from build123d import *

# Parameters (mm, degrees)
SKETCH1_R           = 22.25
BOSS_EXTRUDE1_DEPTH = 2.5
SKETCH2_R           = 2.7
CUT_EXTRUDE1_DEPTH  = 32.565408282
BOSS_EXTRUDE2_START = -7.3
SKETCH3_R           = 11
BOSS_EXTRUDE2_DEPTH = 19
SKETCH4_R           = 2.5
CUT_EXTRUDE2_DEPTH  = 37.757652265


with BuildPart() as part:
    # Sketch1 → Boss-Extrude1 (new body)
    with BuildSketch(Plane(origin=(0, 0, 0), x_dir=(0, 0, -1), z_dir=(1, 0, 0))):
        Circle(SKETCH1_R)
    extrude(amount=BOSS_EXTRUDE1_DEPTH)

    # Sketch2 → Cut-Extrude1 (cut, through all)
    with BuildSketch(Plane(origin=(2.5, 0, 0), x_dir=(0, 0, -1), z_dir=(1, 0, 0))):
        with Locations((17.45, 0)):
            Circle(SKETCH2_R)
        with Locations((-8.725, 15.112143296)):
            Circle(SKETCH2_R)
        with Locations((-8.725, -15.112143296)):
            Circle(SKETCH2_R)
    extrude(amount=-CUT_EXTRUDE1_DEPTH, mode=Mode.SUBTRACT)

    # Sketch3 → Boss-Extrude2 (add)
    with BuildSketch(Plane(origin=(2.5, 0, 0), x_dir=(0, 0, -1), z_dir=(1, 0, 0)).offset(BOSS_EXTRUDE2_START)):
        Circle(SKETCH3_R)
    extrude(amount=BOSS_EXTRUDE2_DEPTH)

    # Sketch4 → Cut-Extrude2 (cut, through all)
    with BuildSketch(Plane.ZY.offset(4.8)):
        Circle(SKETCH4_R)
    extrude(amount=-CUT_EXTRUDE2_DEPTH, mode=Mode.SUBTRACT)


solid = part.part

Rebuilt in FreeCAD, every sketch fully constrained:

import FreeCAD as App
import Part
import Sketcher

V = App.Vector

doc = App.newDocument("Part")
body = doc.addObject("PartDesign::Body", "Body")

# Sketch on YZ plane
sketch1 = body.newObject("Sketcher::SketchObject", "Sketch")
sketch1.AttachmentSupport = (doc.getObject("YZ_Plane"), [""])
sketch1.MapMode = "FlatFace"
sketch1.addGeometry(Part.Circle(V(0, 0, 0), V(0, 0, 1), 22), False)
sketch1.addConstraint([
    Sketcher.Constraint("Coincident", 0, 3, -1, 1),
    Sketcher.Constraint("Diameter", 0, 44.5),
])
pad1 = body.newObject("PartDesign::Pad", "Pad")
pad1.Profile = sketch1
pad1.Length = 2.5

# Sketch on YZ plane
sketch2 = body.newObject("Sketcher::SketchObject", "Sketch001")
sketch2.AttachmentSupport = (doc.getObject("YZ_Plane"), [""])
sketch2.MapMode = "FlatFace"
sketch2.AttachmentOffset = App.Placement(V(0, 0, 2.5), App.Rotation())
sketch2.addGeometry([
    Part.Circle(V(0, -17.4, 0), V(0, 0, 1), 2.7),
    Part.Circle(V(15.1, 8.7, 0), V(0, 0, 1), 2.7),
    Part.Circle(V(-15.1, 8.7, 0), V(0, 0, 1), 2.7),
], False)
sketch2.addConstraint([
    Sketcher.Constraint("Equal", 0, 1),
    Sketcher.Constraint("Equal", 1, 2),
    Sketcher.Constraint("Symmetric", 1, 3, 2, 3, -2),
    Sketcher.Constraint("PointOnObject", 0, 3, -2),
    Sketcher.Constraint("Diameter", 0, 5.4),
    Sketcher.Constraint("DistanceY", 0, 3, -1, 1, 17.45),
    Sketcher.Constraint("DistanceY", -1, 1, 1, 3, 8.725),
    Sketcher.Constraint("DistanceX", -1, 1, 1, 3, 15.112143),
])
pocket1 = body.newObject("PartDesign::Pocket", "Pocket")
pocket1.Profile = sketch2
pocket1.Type = "ThroughAll"

# Sketch on YZ plane
sketch3 = body.newObject("Sketcher::SketchObject", "Sketch002")
sketch3.AttachmentSupport = (doc.getObject("YZ_Plane"), [""])
sketch3.MapMode = "FlatFace"
sketch3.AttachmentOffset = App.Placement(V(0, 0, -4.8), App.Rotation())
sketch3.addGeometry(Part.Circle(V(0, 0, 0), V(0, 0, 1), 11), False)
sketch3.addConstraint([
    Sketcher.Constraint("Coincident", 0, 3, -1, 1),
    Sketcher.Constraint("Diameter", 0, 22.0),
])
pad2 = body.newObject("PartDesign::Pad", "Pad001")
pad2.Profile = sketch3
pad2.Length = 19

# Sketch on YZ plane
sketch4 = body.newObject("Sketcher::SketchObject", "Sketch003")
sketch4.AttachmentSupport = (doc.getObject("YZ_Plane"), [""])
sketch4.MapMode = "FlatFace"
sketch4.AttachmentOffset = App.Placement(V(0, 0, -4.8), App.Rotation())
sketch4.addGeometry(Part.Circle(V(0, 0, 0), V(0, 0, 1), 2.5), False)
sketch4.addConstraint([
    Sketcher.Constraint("Coincident", 0, 3, -1, 1),
    Sketcher.Constraint("Diameter", 0, 5.0),
])
pocket2 = body.newObject("PartDesign::Pocket", "Pocket001")
pocket2.Profile = sketch4
pocket2.Type = "ThroughAll"
pocket2.Reversed = True

doc.recompute()
